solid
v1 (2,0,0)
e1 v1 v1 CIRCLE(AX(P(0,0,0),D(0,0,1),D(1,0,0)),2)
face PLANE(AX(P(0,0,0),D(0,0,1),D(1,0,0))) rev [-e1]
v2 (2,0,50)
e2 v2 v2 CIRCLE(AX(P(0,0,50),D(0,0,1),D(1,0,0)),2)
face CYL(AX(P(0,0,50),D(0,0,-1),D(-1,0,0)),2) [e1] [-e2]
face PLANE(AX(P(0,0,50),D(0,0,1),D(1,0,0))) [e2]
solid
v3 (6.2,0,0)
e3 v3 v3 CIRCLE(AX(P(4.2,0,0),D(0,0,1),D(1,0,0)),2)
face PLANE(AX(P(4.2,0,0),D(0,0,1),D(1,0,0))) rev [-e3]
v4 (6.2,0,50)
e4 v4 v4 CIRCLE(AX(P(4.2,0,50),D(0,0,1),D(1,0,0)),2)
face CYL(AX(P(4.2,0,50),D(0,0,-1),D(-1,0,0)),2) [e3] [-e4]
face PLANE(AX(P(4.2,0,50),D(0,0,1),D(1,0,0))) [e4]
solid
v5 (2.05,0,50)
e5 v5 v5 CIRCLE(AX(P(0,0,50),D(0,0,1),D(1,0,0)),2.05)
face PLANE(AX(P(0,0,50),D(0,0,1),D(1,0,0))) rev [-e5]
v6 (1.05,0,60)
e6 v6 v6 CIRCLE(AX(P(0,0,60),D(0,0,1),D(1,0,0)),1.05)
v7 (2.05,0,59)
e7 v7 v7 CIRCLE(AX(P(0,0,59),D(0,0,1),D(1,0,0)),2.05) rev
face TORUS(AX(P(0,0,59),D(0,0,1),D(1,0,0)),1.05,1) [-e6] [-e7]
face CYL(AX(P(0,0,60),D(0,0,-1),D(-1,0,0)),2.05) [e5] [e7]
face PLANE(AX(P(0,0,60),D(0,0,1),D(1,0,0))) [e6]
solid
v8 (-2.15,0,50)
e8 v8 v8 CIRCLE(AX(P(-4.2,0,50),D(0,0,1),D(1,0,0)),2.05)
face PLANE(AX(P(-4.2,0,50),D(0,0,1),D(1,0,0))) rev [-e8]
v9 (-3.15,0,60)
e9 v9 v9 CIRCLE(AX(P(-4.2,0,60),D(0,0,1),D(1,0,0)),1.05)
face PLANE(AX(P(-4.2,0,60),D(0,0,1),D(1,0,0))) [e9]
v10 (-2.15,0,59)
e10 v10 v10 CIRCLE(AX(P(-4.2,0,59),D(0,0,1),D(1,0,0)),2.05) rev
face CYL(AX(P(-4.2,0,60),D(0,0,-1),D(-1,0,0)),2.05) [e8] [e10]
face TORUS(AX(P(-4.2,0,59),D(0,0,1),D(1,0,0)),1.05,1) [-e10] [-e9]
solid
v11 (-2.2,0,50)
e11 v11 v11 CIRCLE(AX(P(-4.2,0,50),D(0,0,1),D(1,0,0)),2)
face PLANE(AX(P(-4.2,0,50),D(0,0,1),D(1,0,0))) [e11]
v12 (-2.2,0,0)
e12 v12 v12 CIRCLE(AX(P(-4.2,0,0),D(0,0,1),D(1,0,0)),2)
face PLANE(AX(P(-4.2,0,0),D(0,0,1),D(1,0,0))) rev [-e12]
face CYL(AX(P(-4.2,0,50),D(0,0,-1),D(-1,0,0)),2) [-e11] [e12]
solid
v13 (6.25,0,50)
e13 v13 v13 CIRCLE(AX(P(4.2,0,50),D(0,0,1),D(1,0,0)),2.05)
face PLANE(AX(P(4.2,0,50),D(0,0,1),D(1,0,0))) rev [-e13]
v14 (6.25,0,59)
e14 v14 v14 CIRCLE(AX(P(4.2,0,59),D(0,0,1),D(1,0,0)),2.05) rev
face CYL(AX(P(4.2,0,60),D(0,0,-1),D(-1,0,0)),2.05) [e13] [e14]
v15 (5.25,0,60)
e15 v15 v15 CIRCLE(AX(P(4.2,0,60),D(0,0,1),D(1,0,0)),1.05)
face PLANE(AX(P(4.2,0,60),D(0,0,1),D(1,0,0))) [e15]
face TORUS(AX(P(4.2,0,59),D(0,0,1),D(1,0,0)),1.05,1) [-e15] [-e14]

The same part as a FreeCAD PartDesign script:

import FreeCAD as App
import Part
import Sketcher

V = App.Vector
Q = App.Units.Quantity


def edges_at(feature, points):
    """Names of the edges that pass closest to the given points."""
    edges = feature.Shape.Edges
    near = lambda p: min(range(len(edges)), key=lambda i: edges[i].distToShape(Part.Vertex(*p))[0])
    return sorted({f"Edge{near(p) + 1}" for p in points})

doc = App.newDocument("Part")
body = doc.addObject("PartDesign::Body", "Body")

# Sketch on XY plane
sketch1 = body.newObject("Sketcher::SketchObject", "Sketch")
sketch1.AttachmentSupport = (doc.getObject("XY_Plane"), [""])
sketch1.MapMode = "FlatFace"
sketch1.addGeometry(Part.Circle(V(0, 0, 0), V(0, 0, 1), 2), False)
sketch1.addConstraint(Sketcher.Constraint("Coincident", 0, 3, -1, 1))
sketch1.addConstraint(Sketcher.Constraint("Diameter", 0, Q("4 mm")))
pad1 = body.newObject("PartDesign::Pad", "Pad")
pad1.Profile = sketch1
pad1.Length = 50
body2 = doc.addObject("PartDesign::Body", "Body001")

# Sketch on XY plane
sketch2 = body2.newObject("Sketcher::SketchObject", "Sketch001")
sketch2.AttachmentSupport = (doc.getObject("XY_Plane001"), [""])
sketch2.MapMode = "FlatFace"
sketch2.addGeometry(Part.Circle(V(4.2, 0, 0), V(0, 0, 1), 2), False)
sketch2.addConstraint(Sketcher.Constraint("PointOnObject", 0, 3, -1))
sketch2.addConstraint(Sketcher.Constraint("Diameter", 0, Q("4 mm")))
sketch2.addConstraint(Sketcher.Constraint("DistanceX", -1, 1, 0, 3, Q("4.2 mm")))
pad2 = body2.newObject("PartDesign::Pad", "Pad001")
pad2.Profile = sketch2
pad2.Length = 50
body3 = doc.addObject("PartDesign::Body", "Body002")

# Sketch on XY plane
sketch3 = body3.newObject("Sketcher::SketchObject", "Sketch002")
sketch3.AttachmentSupport = (doc.getObject("XY_Plane002"), [""])
sketch3.MapMode = "FlatFace"
sketch3.addGeometry(Part.Circle(V(-4.2, 0, 0), V(0, 0, 1), 2), False)
sketch3.addConstraint(Sketcher.Constraint("PointOnObject", 0, 3, -1))
sketch3.addConstraint(Sketcher.Constraint("Diameter", 0, Q("4 mm")))
sketch3.addConstraint(Sketcher.Constraint("DistanceX", 0, 3, -1, 1, Q("4.2 mm")))
pad3 = body3.newObject("PartDesign::Pad", "Pad002")
pad3.Profile = sketch3
pad3.Length = 50
body4 = doc.addObject("PartDesign::Body", "Body003")

# Sketch on XY plane
sketch4 = body4.newObject("Sketcher::SketchObject", "Sketch003")
sketch4.AttachmentSupport = (doc.getObject("XY_Plane003"), [""])
sketch4.MapMode = "FlatFace"
sketch4.AttachmentOffset = App.Placement(V(0, 0, 50), App.Rotation())
sketch4.addGeometry(Part.Circle(V(0, 0, 0), V(0, 0, 1), 2), False)
sketch4.addConstraint(Sketcher.Constraint("Coincident", 0, 3, -1, 1))
sketch4.addConstraint(Sketcher.Constraint("Diameter", 0, Q("4.1 mm")))
pad4 = body4.newObject("PartDesign::Pad", "Pad003")
pad4.Profile = sketch4
pad4.Length = 10
doc.recompute()

fillet = body4.newObject("PartDesign::Fillet", "Fillet")
fillet.Base = (pad4, edges_at(pad4, [(-2.05, 0, 60)]))
fillet.Radius = 1
body5 = doc.addObject("PartDesign::Body", "Body004")

# Sketch on XY plane
sketch5 = body5.newObject("Sketcher::SketchObject", "Sketch004")
sketch5.AttachmentSupport = (doc.getObject("XY_Plane004"), [""])
sketch5.MapMode = "FlatFace"
sketch5.AttachmentOffset = App.Placement(V(0, 0, 50), App.Rotation())
sketch5.addGeometry(Part.Circle(V(4.2, 0, 0), V(0, 0, 1), 2), False)
sketch5.addConstraint(Sketcher.Constraint("PointOnObject", 0, 3, -1))
sketch5.addConstraint(Sketcher.Constraint("Diameter", 0, Q("4.1 mm")))
sketch5.addConstraint(Sketcher.Constraint("DistanceX", -1, 1, 0, 3, Q("4.2 mm")))
pad5 = body5.newObject("PartDesign::Pad", "Pad004")
pad5.Profile = sketch5
pad5.Length = 10
doc.recompute()

fillet2 = body5.newObject("PartDesign::Fillet", "Fillet001")
fillet2.Base = (pad5, edges_at(pad5, [(2.15, 0, 60)]))
fillet2.Radius = 1
body6 = doc.addObject("PartDesign::Body", "Body005")

# Sketch on XY plane
sketch6 = body6.newObject("Sketcher::SketchObject", "Sketch005")
sketch6.AttachmentSupport = (doc.getObject("XY_Plane005"), [""])
sketch6.MapMode = "FlatFace"
sketch6.AttachmentOffset = App.Placement(V(0, 0, 50), App.Rotation())
sketch6.addGeometry(Part.Circle(V(-4.2, 0, 0), V(0, 0, 1), 2), False)
sketch6.addConstraint(Sketcher.Constraint("PointOnObject", 0, 3, -1))
sketch6.addConstraint(Sketcher.Constraint("Diameter", 0, Q("4.1 mm")))
sketch6.addConstraint(Sketcher.Constraint("DistanceX", 0, 3, -1, 1, Q("4.2 mm")))
pad6 = body6.newObject("PartDesign::Pad", "Pad005")
pad6.Profile = sketch6
pad6.Length = 10
doc.recompute()

fillet3 = body6.newObject("PartDesign::Fillet", "Fillet002")
fillet3.Base = (pad6, edges_at(pad6, [(-6.25, 0, 60)]))
fillet3.Radius = 1

doc.recompute()
